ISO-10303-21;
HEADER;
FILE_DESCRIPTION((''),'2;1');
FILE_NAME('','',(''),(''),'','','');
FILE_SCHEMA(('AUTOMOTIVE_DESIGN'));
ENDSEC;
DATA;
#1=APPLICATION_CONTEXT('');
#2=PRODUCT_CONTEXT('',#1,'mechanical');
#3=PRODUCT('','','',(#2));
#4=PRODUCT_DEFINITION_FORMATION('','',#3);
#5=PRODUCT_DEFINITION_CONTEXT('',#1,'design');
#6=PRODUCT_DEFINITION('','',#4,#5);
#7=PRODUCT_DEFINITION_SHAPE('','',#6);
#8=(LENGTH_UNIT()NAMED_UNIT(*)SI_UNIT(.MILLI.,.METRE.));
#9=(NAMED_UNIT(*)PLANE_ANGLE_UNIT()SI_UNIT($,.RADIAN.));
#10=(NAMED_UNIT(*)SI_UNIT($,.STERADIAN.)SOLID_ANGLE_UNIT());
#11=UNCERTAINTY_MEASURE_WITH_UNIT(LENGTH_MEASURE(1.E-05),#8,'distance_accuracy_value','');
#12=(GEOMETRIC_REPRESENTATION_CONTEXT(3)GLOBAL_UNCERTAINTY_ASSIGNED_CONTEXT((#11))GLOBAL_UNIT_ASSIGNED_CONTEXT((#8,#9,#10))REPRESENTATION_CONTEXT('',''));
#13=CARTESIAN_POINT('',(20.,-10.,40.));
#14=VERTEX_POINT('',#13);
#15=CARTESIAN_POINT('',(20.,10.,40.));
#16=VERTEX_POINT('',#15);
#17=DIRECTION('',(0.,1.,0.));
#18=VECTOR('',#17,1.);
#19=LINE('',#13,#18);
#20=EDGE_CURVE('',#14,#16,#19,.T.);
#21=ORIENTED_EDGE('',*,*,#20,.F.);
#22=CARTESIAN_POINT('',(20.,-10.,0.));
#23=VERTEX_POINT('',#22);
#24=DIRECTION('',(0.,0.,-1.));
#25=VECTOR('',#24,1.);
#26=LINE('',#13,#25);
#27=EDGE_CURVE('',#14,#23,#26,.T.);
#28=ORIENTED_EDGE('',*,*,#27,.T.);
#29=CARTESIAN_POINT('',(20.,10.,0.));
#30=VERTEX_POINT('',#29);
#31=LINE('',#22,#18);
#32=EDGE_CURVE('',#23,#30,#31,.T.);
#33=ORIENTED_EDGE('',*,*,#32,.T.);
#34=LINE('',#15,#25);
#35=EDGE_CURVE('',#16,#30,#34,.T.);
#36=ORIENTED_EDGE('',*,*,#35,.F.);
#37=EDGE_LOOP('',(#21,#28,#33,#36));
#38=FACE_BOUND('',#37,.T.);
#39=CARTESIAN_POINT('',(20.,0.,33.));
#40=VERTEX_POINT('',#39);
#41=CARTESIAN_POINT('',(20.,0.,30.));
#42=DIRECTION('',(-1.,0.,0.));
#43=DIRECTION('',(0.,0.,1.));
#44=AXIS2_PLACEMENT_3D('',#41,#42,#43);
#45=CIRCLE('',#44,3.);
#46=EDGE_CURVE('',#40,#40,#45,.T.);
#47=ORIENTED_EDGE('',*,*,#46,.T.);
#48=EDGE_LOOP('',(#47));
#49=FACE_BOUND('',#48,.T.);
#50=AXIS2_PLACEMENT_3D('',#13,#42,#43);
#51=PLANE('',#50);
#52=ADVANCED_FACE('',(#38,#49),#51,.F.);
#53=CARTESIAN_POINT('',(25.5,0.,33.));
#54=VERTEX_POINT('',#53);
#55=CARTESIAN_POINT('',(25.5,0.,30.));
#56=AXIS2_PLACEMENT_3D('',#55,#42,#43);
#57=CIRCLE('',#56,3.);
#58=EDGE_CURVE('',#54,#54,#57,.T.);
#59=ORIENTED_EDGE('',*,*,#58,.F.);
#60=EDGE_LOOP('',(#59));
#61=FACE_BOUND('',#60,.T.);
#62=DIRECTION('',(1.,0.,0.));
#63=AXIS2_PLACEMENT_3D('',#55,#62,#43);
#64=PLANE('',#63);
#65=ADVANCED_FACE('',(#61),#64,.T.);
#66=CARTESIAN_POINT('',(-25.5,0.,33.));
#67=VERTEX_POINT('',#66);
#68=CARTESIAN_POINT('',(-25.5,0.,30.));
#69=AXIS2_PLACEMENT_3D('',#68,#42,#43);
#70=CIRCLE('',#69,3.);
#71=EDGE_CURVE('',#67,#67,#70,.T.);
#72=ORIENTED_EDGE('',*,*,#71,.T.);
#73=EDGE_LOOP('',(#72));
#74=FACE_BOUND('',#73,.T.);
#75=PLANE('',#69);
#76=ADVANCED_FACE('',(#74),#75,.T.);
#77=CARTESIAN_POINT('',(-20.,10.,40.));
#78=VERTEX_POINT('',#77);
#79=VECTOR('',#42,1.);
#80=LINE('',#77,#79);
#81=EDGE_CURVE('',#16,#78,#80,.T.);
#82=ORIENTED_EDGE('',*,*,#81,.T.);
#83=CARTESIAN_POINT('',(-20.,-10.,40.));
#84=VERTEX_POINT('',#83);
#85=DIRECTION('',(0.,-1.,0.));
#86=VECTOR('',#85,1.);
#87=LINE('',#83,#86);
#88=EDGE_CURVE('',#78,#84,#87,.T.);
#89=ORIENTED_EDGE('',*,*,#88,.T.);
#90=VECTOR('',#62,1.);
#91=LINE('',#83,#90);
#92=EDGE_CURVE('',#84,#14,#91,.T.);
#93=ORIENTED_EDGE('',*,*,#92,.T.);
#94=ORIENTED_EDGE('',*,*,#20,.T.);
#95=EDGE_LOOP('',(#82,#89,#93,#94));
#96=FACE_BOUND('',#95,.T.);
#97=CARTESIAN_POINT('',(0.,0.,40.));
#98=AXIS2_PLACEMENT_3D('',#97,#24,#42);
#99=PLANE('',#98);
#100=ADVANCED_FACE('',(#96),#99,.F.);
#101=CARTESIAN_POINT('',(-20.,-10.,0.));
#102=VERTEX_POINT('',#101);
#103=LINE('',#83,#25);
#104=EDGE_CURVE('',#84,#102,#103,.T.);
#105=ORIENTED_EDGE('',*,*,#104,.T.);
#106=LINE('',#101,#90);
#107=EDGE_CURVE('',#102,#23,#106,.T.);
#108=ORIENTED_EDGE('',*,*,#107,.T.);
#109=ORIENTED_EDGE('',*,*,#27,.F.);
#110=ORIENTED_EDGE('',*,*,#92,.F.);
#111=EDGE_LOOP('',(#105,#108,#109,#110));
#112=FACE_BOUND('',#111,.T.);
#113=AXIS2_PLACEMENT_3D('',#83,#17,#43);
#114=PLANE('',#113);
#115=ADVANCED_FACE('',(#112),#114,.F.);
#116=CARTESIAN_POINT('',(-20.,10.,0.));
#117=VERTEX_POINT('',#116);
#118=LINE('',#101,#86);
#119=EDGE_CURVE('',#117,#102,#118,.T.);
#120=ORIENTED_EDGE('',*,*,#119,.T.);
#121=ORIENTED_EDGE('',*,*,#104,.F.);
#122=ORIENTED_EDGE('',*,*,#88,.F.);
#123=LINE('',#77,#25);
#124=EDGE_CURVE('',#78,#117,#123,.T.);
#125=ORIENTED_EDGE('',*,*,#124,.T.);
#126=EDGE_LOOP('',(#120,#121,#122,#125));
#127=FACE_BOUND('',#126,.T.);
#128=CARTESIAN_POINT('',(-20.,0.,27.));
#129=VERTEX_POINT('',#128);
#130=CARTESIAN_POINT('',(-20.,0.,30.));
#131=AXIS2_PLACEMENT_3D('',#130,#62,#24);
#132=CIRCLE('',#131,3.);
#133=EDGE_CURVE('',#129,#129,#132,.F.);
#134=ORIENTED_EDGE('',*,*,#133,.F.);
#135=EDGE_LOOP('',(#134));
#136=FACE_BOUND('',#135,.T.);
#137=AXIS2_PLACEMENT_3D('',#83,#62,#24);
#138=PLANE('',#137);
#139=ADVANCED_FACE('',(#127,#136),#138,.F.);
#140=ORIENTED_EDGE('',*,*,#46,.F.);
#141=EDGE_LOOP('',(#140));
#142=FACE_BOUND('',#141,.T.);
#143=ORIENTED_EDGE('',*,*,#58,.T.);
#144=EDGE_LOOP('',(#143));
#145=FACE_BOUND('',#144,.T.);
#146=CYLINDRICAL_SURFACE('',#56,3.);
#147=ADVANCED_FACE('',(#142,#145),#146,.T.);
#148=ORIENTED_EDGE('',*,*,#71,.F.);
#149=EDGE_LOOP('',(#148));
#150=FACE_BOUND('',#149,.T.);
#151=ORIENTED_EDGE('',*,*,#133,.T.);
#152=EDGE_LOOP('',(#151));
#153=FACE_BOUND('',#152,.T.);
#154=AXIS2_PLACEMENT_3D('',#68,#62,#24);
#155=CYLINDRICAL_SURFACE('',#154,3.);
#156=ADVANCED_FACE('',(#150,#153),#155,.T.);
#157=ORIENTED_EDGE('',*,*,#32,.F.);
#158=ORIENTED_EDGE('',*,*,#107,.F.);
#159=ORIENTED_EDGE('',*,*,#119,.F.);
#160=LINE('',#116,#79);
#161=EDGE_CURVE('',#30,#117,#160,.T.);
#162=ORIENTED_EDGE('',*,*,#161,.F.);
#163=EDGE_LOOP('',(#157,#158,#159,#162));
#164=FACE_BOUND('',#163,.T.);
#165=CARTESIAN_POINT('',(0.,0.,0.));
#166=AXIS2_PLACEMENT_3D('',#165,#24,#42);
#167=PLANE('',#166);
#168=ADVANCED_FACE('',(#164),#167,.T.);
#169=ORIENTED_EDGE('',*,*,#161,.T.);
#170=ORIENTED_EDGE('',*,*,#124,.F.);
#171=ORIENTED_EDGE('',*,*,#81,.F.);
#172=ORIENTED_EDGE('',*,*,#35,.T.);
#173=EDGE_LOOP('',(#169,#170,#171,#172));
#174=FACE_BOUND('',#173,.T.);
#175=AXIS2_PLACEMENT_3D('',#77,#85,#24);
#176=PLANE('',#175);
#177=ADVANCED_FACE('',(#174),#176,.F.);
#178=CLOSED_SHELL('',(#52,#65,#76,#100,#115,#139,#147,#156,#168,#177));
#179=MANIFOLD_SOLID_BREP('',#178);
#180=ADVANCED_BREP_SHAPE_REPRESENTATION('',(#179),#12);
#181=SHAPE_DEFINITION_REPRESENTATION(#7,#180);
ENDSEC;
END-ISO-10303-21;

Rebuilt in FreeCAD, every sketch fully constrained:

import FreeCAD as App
import Part
import Sketcher


def add_polygon(sketch, points):
    """Adds a closed chain of lines whose ends are joined by coincident constraints."""
    first, n = sketch.GeometryCount, len(points)
    for a, b in zip(points, points[1:] + points[:1]):
        sketch.addGeometry(Part.LineSegment(App.Vector(*a, 0), App.Vector(*b, 0)), False)
    for i in range(n):
        sketch.addConstraint(Sketcher.Constraint("Coincident", first + i, 2, first + (i + 1) % n, 1))

doc = App.newDocument("Part")
params = doc.addObject("Spreadsheet::Sheet", "Params")
for row, (alias, value) in enumerate([
    ("sketch1_width", "40 mm"),
    ("sketch1_height", "20 mm"),
    ("pad1_length", "40 mm"),
    ("sketch2_diameter", "6 mm"),
    ("pad2_length", "5.5 mm"),
], start=1):
    params.set(f"A{row}", alias)
    params.set(f"B{row}", "=" + value)
    params.setAlias(f"B{row}", alias)

body = doc.addObject("PartDesign::Body", "Body")

# Sketch on XY plane
sketch1 = body.newObject("Sketcher::SketchObject", "Sketch")
sketch1.AttachmentSupport = (doc.getObject("XY_Plane"), [""])
sketch1.MapMode = "FlatFace"
add_polygon(sketch1, [(-20, 10), (-20, -10), (20, -10), (20, 10)])  # lines 0-3
sketch1.addConstraint(Sketcher.Constraint("Vertical", 0))
sketch1.addConstraint(Sketcher.Constraint("Horizontal", 1))
sketch1.addConstraint(Sketcher.Constraint("Vertical", 2))
sketch1.addConstraint(Sketcher.Constraint("Horizontal", 3))
sketch1.addConstraint(Sketcher.Constraint("Symmetric", 0, 2, 2, 2, -1, 1))
sketch1.addConstraint(Sketcher.Constraint("DistanceX", 1, 1, 1, 2, 40.0))
sketch1.addConstraint(Sketcher.Constraint("DistanceY", 0, 2, 0, 1, 20.0))
sketch1.setExpression("Constraints[9]", "Params.sketch1_width")
sketch1.setExpression("Constraints[10]", "Params.sketch1_height")
pad1 = body.newObject("PartDesign::Pad", "Pad")
pad1.Profile = sketch1
pad1.setExpression("Length", "Params.pad1_length")

# Sketch on YZ plane
sketch2 = body.newObject("Sketcher::SketchObject", "Sketch001")
sketch2.AttachmentSupport = (doc.getObject("YZ_Plane"), [""])
sketch2.MapMode = "FlatFace"
sketch2.AttachmentOffset = App.Placement(App.Vector(0, 0, -20), App.Rotation())
sketch2.addGeometry(Part.Circle(App.Vector(0, 30, 0), App.Vector(0, 0, 1), 3), False)
sketch2.addConstraint(Sketcher.Constraint("PointOnObject", 0, 3, -2))
sketch2.addConstraint(Sketcher.Constraint("Diameter", 0, 6.0))
sketch2.addConstraint(Sketcher.Constraint("DistanceY", -1, 1, 0, 3, 30.0))
sketch2.setExpression("Constraints[1]", "Params.sketch2_diameter")
pad2 = body.newObject("PartDesign::Pad", "Pad001")
pad2.Profile = sketch2
pad2.setExpression("Length", "Params.pad2_length")
pad2.Reversed = True
doc.recompute()

mirrored = body.newObject("PartDesign::Mirrored", "Mirrored")
mirrored.Originals = [pad2]
mirrored.MirrorPlane = (doc.getObject("YZ_Plane"), [""])
body.Tip = mirrored

doc.recompute()
